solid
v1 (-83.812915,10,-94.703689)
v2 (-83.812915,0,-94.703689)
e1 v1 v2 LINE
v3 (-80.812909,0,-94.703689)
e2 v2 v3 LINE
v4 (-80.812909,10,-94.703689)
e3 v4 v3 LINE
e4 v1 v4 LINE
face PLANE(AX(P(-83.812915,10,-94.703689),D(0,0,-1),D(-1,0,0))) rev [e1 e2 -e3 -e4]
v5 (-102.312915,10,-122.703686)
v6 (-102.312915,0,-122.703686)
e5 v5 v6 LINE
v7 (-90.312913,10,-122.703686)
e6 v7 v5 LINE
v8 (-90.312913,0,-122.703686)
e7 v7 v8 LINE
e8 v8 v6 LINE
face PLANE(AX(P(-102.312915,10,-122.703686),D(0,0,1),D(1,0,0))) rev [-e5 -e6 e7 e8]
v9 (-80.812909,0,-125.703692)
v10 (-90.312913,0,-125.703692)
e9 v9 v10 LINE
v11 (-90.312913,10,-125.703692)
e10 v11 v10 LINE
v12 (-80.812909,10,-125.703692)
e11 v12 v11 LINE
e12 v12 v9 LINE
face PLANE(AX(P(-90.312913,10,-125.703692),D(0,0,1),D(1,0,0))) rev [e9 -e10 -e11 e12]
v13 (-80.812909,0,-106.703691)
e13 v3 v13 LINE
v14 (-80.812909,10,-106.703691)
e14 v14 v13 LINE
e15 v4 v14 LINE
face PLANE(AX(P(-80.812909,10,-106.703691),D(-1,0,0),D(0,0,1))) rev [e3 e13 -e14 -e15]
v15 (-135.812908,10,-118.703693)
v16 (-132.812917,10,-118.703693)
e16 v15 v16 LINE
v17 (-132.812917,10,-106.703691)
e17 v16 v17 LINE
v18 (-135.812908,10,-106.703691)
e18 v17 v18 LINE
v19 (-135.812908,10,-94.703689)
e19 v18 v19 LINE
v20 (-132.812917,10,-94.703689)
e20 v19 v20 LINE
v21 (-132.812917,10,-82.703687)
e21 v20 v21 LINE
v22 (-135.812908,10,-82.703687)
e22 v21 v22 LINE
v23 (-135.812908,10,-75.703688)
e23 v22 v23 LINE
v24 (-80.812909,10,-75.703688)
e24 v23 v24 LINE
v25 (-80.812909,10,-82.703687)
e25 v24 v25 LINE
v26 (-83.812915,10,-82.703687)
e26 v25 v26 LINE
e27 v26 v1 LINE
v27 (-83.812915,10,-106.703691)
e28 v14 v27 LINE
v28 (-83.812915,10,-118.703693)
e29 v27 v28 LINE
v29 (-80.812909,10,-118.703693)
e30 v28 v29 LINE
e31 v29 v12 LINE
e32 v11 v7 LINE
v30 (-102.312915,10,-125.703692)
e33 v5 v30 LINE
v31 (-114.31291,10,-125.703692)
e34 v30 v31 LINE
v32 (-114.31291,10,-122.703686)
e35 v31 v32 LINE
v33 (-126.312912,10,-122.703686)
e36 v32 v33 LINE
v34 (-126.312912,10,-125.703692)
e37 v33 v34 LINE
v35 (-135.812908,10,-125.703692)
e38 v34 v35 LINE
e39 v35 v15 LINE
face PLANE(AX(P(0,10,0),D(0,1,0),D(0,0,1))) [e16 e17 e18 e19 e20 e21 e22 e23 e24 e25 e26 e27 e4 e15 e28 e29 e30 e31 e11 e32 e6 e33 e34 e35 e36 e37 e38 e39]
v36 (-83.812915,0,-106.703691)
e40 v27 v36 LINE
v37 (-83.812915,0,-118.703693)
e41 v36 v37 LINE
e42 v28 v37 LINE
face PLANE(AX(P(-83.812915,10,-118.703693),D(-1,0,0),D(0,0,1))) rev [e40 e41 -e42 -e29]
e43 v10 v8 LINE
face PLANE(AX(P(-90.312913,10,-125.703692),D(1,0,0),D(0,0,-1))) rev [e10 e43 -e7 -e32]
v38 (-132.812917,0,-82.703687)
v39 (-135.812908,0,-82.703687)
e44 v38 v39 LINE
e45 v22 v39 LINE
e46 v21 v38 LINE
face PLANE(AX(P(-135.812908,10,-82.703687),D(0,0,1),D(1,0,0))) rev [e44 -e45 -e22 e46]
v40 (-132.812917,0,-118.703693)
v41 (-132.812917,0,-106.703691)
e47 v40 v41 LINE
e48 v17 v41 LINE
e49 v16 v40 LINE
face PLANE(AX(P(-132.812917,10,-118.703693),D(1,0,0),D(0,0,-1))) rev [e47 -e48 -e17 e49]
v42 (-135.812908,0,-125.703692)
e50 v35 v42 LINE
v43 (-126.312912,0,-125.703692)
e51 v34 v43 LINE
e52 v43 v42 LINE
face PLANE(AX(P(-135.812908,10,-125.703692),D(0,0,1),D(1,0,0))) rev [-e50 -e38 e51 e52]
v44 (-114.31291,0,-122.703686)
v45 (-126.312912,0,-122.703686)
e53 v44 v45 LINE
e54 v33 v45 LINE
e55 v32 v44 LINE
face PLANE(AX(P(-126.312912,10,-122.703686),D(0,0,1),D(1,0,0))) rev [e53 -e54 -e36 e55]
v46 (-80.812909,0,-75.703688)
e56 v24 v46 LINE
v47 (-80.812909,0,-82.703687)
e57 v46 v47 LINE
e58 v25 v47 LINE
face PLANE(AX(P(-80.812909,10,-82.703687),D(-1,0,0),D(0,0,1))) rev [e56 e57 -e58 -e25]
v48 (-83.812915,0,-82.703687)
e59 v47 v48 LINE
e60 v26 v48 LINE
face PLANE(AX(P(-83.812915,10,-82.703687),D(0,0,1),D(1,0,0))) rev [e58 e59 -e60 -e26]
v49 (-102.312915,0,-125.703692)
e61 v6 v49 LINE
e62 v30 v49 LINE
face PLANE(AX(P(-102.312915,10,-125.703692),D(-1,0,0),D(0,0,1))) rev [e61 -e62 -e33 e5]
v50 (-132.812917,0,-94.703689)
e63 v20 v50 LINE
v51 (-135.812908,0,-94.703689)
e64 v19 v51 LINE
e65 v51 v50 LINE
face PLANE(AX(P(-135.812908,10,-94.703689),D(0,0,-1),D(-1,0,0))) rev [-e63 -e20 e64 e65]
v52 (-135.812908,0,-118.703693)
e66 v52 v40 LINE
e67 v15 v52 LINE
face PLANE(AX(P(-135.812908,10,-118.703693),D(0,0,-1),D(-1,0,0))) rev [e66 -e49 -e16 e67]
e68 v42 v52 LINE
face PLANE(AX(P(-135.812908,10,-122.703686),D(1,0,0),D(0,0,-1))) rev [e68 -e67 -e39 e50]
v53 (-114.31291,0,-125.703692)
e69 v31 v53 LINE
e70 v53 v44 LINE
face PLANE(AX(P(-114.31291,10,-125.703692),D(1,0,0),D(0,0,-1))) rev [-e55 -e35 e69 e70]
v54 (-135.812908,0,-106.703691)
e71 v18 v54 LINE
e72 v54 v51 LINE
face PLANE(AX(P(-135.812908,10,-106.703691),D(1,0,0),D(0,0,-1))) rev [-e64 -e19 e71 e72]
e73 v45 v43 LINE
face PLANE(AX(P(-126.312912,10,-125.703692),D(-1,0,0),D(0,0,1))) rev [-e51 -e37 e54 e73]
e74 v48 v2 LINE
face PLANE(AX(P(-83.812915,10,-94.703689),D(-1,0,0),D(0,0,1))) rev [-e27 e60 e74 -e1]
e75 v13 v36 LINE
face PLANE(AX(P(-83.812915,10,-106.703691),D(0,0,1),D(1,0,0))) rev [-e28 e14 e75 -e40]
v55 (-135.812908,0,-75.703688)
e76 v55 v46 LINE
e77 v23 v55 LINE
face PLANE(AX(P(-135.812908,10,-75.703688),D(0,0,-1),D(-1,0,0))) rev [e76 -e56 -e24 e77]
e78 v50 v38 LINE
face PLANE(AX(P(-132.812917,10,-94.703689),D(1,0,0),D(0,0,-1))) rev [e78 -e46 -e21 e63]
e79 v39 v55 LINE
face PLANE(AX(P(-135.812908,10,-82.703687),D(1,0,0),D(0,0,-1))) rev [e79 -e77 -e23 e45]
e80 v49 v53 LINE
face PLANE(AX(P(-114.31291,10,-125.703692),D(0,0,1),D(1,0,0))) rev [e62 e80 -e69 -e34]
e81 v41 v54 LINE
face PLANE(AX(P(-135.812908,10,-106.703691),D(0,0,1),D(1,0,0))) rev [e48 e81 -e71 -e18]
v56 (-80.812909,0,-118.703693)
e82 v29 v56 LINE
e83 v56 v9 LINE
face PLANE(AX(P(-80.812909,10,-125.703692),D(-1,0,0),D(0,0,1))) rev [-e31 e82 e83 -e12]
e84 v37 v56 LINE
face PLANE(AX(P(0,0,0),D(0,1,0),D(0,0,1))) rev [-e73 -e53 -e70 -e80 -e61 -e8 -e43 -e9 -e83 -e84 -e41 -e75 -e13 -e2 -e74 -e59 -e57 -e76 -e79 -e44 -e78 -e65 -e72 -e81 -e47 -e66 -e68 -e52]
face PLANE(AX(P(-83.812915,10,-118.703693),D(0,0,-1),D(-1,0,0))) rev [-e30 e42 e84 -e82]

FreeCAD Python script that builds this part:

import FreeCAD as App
import Part
import Sketcher

doc = App.newDocument("Part")
params = doc.addObject("Spreadsheet::Sheet", "Params")
for row, (alias, value) in enumerate([
    ("sketch1_width", "55 mm"),
    ("sketch1_width2", "12.000002 mm"),
    ("sketch1_height", "6.999999 mm"),
    ("pad1_length", "10 mm"),
], start=1):
    params.set(f"A{row}", alias)
    params.set(f"B{row}", "=" + value)
    params.setAlias(f"B{row}", alias)

body = doc.addObject("PartDesign::Body", "Body")

sketch1 = body.newObject("Sketcher::SketchObject", "Sketch")
sketch1.AttachmentSupport = (doc.getObject("XZ_Plane"), [""])
sketch1.MapMode = "FlatFace"
sketch1.addGeometry(Part.LineSegment(App.Vector(-126.3, -125.7, 0), App.Vector(-135.8, -125.7, 0)), False)
sketch1.addGeometry(Part.LineSegment(App.Vector(-135.8, -125.7, 0), App.Vector(-135.8, -118.7, 0)), False)
sketch1.addGeometry(Part.LineSegment(App.Vector(-135.8, -118.7, 0), App.Vector(-132.8, -118.7, 0)), False)
sketch1.addGeometry(Part.LineSegment(App.Vector(-132.8, -118.7, 0), App.Vector(-132.8, -106.7, 0)), False)
sketch1.addGeometry(Part.LineSegment(App.Vector(-132.8, -106.7, 0), App.Vector(-135.8, -106.7, 0)), False)
sketch1.addGeometry(Part.LineSegment(App.Vector(-135.8, -106.7, 0), App.Vector(-135.8, -94.7, 0)), False)
sketch1.addGeometry(Part.LineSegment(App.Vector(-135.8, -94.7, 0), App.Vector(-132.8, -94.7, 0)), False)
sketch1.addGeometry(Part.LineSegment(App.Vector(-132.8, -94.7, 0), App.Vector(-132.8, -82.7, 0)), False)
sketch1.addGeometry(Part.LineSegment(App.Vector(-132.8, -82.7, 0), App.Vector(-135.8, -82.7, 0)), False)
sketch1.addGeometry(Part.LineSegment(App.Vector(-135.8, -82.7, 0), App.Vector(-135.8, -75.7, 0)), False)
sketch1.addGeometry(Part.LineSegment(App.Vector(-135.8, -75.7, 0), App.Vector(-80.8, -75.7, 0)), False)
sketch1.addGeometry(Part.LineSegment(App.Vector(-80.8, -75.7, 0), App.Vector(-80.8, -82.7, 0)), False)
sketch1.addGeometry(Part.LineSegment(App.Vector(-80.8, -82.7, 0), App.Vector(-83.8, -82.7, 0)), False)
sketch1.addGeometry(Part.LineSegment(App.Vector(-83.8, -82.7, 0), App.Vector(-83.8, -94.7, 0)), False)
sketch1.addGeometry(Part.LineSegment(App.Vector(-83.8, -94.7, 0), App.Vector(-80.8, -94.7, 0)), False)
sketch1.addGeometry(Part.LineSegment(App.Vector(-80.8, -94.7, 0), App.Vector(-80.8, -106.7, 0)), False)
sketch1.addGeometry(Part.LineSegment(App.Vector(-80.8, -106.7, 0), App.Vector(-83.8, -106.7, 0)), False)
sketch1.addGeometry(Part.LineSegment(App.Vector(-83.8, -106.7, 0), App.Vector(-83.8, -118.7, 0)), False)
sketch1.addGeometry(Part.LineSegment(App.Vector(-83.8, -118.7, 0), App.Vector(-80.8, -118.7, 0)), False)
sketch1.addGeometry(Part.LineSegment(App.Vector(-80.8, -118.7, 0), App.Vector(-80.8, -125.7, 0)), False)
sketch1.addGeometry(Part.LineSegment(App.Vector(-80.8, -125.7, 0), App.Vector(-90.3, -125.7, 0)), False)
sketch1.addGeometry(Part.LineSegment(App.Vector(-90.3, -125.7, 0), App.Vector(-90.3, -122.7, 0)), False)
sketch1.addGeometry(Part.LineSegment(App.Vector(-90.3, -122.7, 0), App.Vector(-102.3, -122.7, 0)), False)
sketch1.addGeometry(Part.LineSegment(App.Vector(-102.3, -122.7, 0), App.Vector(-102.3, -125.7, 0)), False)
sketch1.addGeometry(Part.LineSegment(App.Vector(-102.3, -125.7, 0), App.Vector(-114.3, -125.7, 0)), False)
sketch1.addGeometry(Part.LineSegment(App.Vector(-114.3, -125.7, 0), App.Vector(-114.3, -122.7, 0)), False)
sketch1.addGeometry(Part.LineSegment(App.Vector(-114.3, -122.7, 0), App.Vector(-126.3, -122.7, 0)), False)
sketch1.addGeometry(Part.LineSegment(App.Vector(-126.3, -122.7, 0), App.Vector(-126.3, -125.7, 0)), False)
sketch1.addConstraint(Sketcher.Constraint("Coincident", 0, 2, 1, 1))
sketch1.addConstraint(Sketcher.Constraint("Coincident", 1, 2, 2, 1))
sketch1.addConstraint(Sketcher.Constraint("Coincident", 2, 2, 3, 1))
sketch1.addConstraint(Sketcher.Constraint("Coincident", 3, 2, 4, 1))
sketch1.addConstraint(Sketcher.Constraint("Coincident", 4, 2, 5, 1))
sketch1.addConstraint(Sketcher.Constraint("Coincident", 5, 2, 6, 1))
sketch1.addConstraint(Sketcher.Constraint("Coincident", 6, 2, 7, 1))
sketch1.addConstraint(Sketcher.Constraint("Coincident", 7, 2, 8, 1))
sketch1.addConstraint(Sketcher.Constraint("Coincident", 8, 2, 9, 1))
sketch1.addConstraint(Sketcher.Constraint("Coincident", 9, 2, 10, 1))
sketch1.addConstraint(Sketcher.Constraint("Coincident", 10, 2, 11, 1))
sketch1.addConstraint(Sketcher.Constraint("Coincident", 11, 2, 12, 1))
sketch1.addConstraint(Sketcher.Constraint("Coincident", 12, 2, 13, 1))
sketch1.addConstraint(Sketcher.Constraint("Coincident", 13, 2, 14, 1))
sketch1.addConstraint(Sketcher.Constraint("Coincident", 14, 2, 15, 1))
sketch1.addConstraint(Sketcher.Constraint("Coincident", 15, 2, 16, 1))
sketch1.addConstraint(Sketcher.Constraint("Coincident", 16, 2, 17, 1))
sketch1.addConstraint(Sketcher.Constraint("Coincident", 17, 2, 18, 1))
sketch1.addConstraint(Sketcher.Constraint("Coincident", 18, 2, 19, 1))
sketch1.addConstraint(Sketcher.Constraint("Coincident", 19, 2, 20, 1))
sketch1.addConstraint(Sketcher.Constraint("Coincident", 20, 2, 21, 1))
sketch1.addConstraint(Sketcher.Constraint("Coincident", 21, 2, 22, 1))
sketch1.addConstraint(Sketcher.Constraint("Coincident", 22, 2, 23, 1))
sketch1.addConstraint(Sketcher.Constraint("Coincident", 23, 2, 24, 1))
sketch1.addConstraint(Sketcher.Constraint("Coincident", 24, 2, 25, 1))
sketch1.addConstraint(Sketcher.Constraint("Coincident", 25, 2, 26, 1))
sketch1.addConstraint(Sketcher.Constraint("Coincident", 26, 2, 27, 1))
sketch1.addConstraint(Sketcher.Constraint("Coincident", 27, 2, 0, 1))
sketch1.addConstraint(Sketcher.Constraint("Horizontal", 0))
sketch1.addConstraint(Sketcher.Constraint("Vertical", 1))
sketch1.addConstraint(Sketcher.Constraint("Horizontal", 2))
sketch1.addConstraint(Sketcher.Constraint("Vertical", 3))
sketch1.addConstraint(Sketcher.Constraint("Horizontal", 4))
sketch1.addConstraint(Sketcher.Constraint("Vertical", 5))
sketch1.addConstraint(Sketcher.Constraint("Horizontal", 6))
sketch1.addConstraint(Sketcher.Constraint("Vertical", 7))
sketch1.addConstraint(Sketcher.Constraint("Horizontal", 8))
sketch1.addConstraint(Sketcher.Constraint("Vertical", 9))
sketch1.addConstraint(Sketcher.Constraint("Horizontal", 10))
sketch1.addConstraint(Sketcher.Constraint("Vertical", 11))
sketch1.addConstraint(Sketcher.Constraint("Horizontal", 12))
sketch1.addConstraint(Sketcher.Constraint("Vertical", 13))
sketch1.addConstraint(Sketcher.Constraint("Horizontal", 14))
sketch1.addConstraint(Sketcher.Constraint("Vertical", 15))
sketch1.addConstraint(Sketcher.Constraint("Horizontal", 16))
sketch1.addConstraint(Sketcher.Constraint("Vertical", 17))
sketch1.addConstraint(Sketcher.Constraint("Horizontal", 18))
sketch1.addConstraint(Sketcher.Constraint("Vertical", 19))
sketch1.addConstraint(Sketcher.Constraint("Horizontal", 20))
sketch1.addConstraint(Sketcher.Constraint("Vertical", 21))
sketch1.addConstraint(Sketcher.Constraint("Horizontal", 22))
sketch1.addConstraint(Sketcher.Constraint("Vertical", 23))
sketch1.addConstraint(Sketcher.Constraint("Horizontal", 24))
sketch1.addConstraint(Sketcher.Constraint("Vertical", 25))
sketch1.addConstraint(Sketcher.Constraint("Horizontal", 26))
sketch1.addConstraint(Sketcher.Constraint("Vertical", 27))
sketch1.addConstraint(Sketcher.Constraint("Horizontal", 8, 2, 11, 2))
sketch1.addConstraint(Sketcher.Constraint("Horizontal", 6, 2, 13, 2))
sketch1.addConstraint(Sketcher.Constraint("Horizontal", 4, 2, 15, 2))
sketch1.addConstraint(Sketcher.Constraint("Horizontal", 2, 2, 17, 2))
sketch1.addConstraint(Sketcher.Constraint("Horizontal", 0, 2, 19, 2))
sketch1.addConstraint(Sketcher.Constraint("Horizontal", 20, 2, 23, 2))
sketch1.addConstraint(Sketcher.Constraint("Horizontal", 22, 2, 25, 2))
sketch1.addConstraint(Sketcher.Constraint("Vertical", 1, 2, 4, 2))
sketch1.addConstraint(Sketcher.Constraint("Vertical", 3, 2, 6, 2))
sketch1.addConstraint(Sketcher.Constraint("Vertical", 5, 2, 8, 2))
sketch1.addConstraint(Sketcher.Constraint("Vertical", 11, 2, 14, 2))
sketch1.addConstraint(Sketcher.Constraint("Vertical", 13, 2, 16, 2))
sketch1.addConstraint(Sketcher.Constraint("Vertical", 15, 2, 18, 2))
sketch1.addConstraint(Sketcher.Constraint("Equal", 22, 26))
sketch1.addConstraint(Sketcher.Constraint("Equal", 26, 3))
sketch1.addConstraint(Sketcher.Constraint("Equal", 3, 5))
sketch1.addConstraint(Sketcher.Constraint("Equal", 5, 7))
sketch1.addConstraint(Sketcher.Constraint("Equal", 1, 9))
sketch1.addConstraint(Sketcher.Constraint("Equal", 18, 21))
sketch1.addConstraint(Sketcher.Constraint("DistanceX", 10, 1, 10, 2, 55.0))
sketch1.addConstraint(Sketcher.Constraint("DistanceX", 22, 2, 22, 1, 12.000002))
sketch1.addConstraint(Sketcher.Constraint("DistanceY", 1, 1, 1, 2, 6.999999))
sketch1.addConstraint(Sketcher.Constraint("DistanceX", 20, 2, 17, 2, 6.499998))
sketch1.addConstraint(Sketcher.Constraint("DistanceX", 0, 2, 24, 2, 21.499999))
sketch1.addConstraint(Sketcher.Constraint("DistanceX", 2, 1, 2, 2, 2.999991))
sketch1.addConstraint(Sketcher.Constraint("DistanceX", 12, 2, 12, 1, 3.000006))
sketch1.addConstraint(Sketcher.Constraint("DistanceX", 0, 2, -1, 1, 135.812908))
sketch1.addConstraint(Sketcher.Constraint("DistanceY", 3, 2, -1, 1, 106.703691))
sketch1.setExpression("Constraints[75]", "Params.sketch1_width")
sketch1.setExpression("Constraints[76]", "Params.sketch1_width2")
sketch1.setExpression("Constraints[77]", "Params.sketch1_height")
pad1 = body.newObject("PartDesign::Pad", "Pad")
pad1.Profile = sketch1
pad1.setExpression("Length", "Params.pad1_length")
pad1.Reversed = True

doc.recompute()
